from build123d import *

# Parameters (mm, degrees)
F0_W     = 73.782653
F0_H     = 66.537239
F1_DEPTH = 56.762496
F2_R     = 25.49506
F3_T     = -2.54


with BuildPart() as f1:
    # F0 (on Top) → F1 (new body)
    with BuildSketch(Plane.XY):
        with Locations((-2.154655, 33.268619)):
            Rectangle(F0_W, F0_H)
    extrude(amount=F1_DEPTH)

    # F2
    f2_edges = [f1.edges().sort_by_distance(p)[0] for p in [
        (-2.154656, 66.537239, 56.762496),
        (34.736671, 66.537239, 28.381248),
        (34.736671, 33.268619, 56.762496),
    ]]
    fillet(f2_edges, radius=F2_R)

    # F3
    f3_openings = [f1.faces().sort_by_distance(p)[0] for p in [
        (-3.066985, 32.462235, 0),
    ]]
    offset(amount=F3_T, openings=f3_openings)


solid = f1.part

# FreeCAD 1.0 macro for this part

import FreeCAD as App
import Part
import Sketcher

V = App.Vector


def edges_at(feature, points):
    """Names of the edges that pass closest to the given points."""
    edges = feature.Shape.Edges
    near = lambda p: min(range(len(edges)), key=lambda i: edges[i].distToShape(Part.Vertex(*p))[0])
    return sorted({f"Edge{near(p) + 1}" for p in points})


def faces_at(feature, points):
    """Names of the faces that lie closest to the given points."""
    faces = feature.Shape.Faces
    near = lambda p: min(range(len(faces)), key=lambda i: faces[i].distToShape(Part.Vertex(*p))[0])
    return sorted({f"Face{near(p) + 1}" for p in points})


def add_polygon(sketch, points):
    """Adds a closed chain of lines whose ends are joined by coincident constraints."""
    first, n = sketch.GeometryCount, len(points)
    for a, b in zip(points, points[1:] + points[:1]):
        sketch.addGeometry(Part.LineSegment(App.Vector(*a, 0), App.Vector(*b, 0)), False)
    for i in range(n):
        sketch.addConstraint(Sketcher.Constraint("Coincident", first + i, 2, first + (i + 1) % n, 1))

doc = App.newDocument("Part")
params = doc.addObject("Spreadsheet::Sheet", "Params")
for row, (alias, value) in enumerate([
    ("pad1_length", "56.762496 mm"),
    ("fillet_radius", "25.49506 mm"),
    ("thickness_wall", "0.1 in"),
], start=1):
    params.set(f"A{row}", alias)
    params.set(f"B{row}", "=" + value)
    params.setAlias(f"B{row}", alias)

body = doc.addObject("PartDesign::Body", "Body")

sketch1 = body.newObject("Sketcher::SketchObject", "Sketch")
sketch1.AttachmentSupport = (doc.getObject("XY_Plane"), [""])
sketch1.MapMode = "FlatFace"
add_polygon(sketch1, [(-39.045982, 66.537239), (-39.045982, 0), (34.736671, 0), (34.736671, 66.537239)])
sketch1.addConstraint(Sketcher.Constraint("Vertical", 0))
sketch1.addConstraint(Sketcher.Constraint("Horizontal", 1))
sketch1.addConstraint(Sketcher.Constraint("Vertical", 2))
sketch1.addConstraint(Sketcher.Constraint("Horizontal", 3))
sketch1.addConstraint(Sketcher.Constraint("PointOnObject", 0, 2, -1))
sketch1.addConstraint(Sketcher.Constraint("DistanceY", 0, 2, 0, 1, 66.537239))
sketch1.addConstraint(Sketcher.Constraint("DistanceX", 1, 1, 1, 2, 73.782653))
sketch1.addConstraint(Sketcher.Constraint("DistanceX", 0, 2, -1, 1, 39.045982))
pad1 = body.newObject("PartDesign::Pad", "Pad")
pad1.Profile = sketch1
pad1.setExpression("Length", "Params.pad1_length")
doc.recompute()

fillet = body.newObject("PartDesign::Fillet", "Fillet")
fillet.Base = (pad1, edges_at(pad1, [(-2.155, 66.537, 56.762), (34.737, 66.537, 28.381), (34.737, 33.269, 56.762)]))
fillet.setExpression("Radius", "Params.fillet_radius")
doc.recompute()

thickness = body.newObject("PartDesign::Thickness", "Thickness")
thickness.Base = (fillet, faces_at(fillet, [(-2.155, 33.269, 0)]))
thickness.setExpression("Value", "Params.thickness_wall")
thickness.Reversed = True
thickness.Join = "Arc"

doc.recompute()
